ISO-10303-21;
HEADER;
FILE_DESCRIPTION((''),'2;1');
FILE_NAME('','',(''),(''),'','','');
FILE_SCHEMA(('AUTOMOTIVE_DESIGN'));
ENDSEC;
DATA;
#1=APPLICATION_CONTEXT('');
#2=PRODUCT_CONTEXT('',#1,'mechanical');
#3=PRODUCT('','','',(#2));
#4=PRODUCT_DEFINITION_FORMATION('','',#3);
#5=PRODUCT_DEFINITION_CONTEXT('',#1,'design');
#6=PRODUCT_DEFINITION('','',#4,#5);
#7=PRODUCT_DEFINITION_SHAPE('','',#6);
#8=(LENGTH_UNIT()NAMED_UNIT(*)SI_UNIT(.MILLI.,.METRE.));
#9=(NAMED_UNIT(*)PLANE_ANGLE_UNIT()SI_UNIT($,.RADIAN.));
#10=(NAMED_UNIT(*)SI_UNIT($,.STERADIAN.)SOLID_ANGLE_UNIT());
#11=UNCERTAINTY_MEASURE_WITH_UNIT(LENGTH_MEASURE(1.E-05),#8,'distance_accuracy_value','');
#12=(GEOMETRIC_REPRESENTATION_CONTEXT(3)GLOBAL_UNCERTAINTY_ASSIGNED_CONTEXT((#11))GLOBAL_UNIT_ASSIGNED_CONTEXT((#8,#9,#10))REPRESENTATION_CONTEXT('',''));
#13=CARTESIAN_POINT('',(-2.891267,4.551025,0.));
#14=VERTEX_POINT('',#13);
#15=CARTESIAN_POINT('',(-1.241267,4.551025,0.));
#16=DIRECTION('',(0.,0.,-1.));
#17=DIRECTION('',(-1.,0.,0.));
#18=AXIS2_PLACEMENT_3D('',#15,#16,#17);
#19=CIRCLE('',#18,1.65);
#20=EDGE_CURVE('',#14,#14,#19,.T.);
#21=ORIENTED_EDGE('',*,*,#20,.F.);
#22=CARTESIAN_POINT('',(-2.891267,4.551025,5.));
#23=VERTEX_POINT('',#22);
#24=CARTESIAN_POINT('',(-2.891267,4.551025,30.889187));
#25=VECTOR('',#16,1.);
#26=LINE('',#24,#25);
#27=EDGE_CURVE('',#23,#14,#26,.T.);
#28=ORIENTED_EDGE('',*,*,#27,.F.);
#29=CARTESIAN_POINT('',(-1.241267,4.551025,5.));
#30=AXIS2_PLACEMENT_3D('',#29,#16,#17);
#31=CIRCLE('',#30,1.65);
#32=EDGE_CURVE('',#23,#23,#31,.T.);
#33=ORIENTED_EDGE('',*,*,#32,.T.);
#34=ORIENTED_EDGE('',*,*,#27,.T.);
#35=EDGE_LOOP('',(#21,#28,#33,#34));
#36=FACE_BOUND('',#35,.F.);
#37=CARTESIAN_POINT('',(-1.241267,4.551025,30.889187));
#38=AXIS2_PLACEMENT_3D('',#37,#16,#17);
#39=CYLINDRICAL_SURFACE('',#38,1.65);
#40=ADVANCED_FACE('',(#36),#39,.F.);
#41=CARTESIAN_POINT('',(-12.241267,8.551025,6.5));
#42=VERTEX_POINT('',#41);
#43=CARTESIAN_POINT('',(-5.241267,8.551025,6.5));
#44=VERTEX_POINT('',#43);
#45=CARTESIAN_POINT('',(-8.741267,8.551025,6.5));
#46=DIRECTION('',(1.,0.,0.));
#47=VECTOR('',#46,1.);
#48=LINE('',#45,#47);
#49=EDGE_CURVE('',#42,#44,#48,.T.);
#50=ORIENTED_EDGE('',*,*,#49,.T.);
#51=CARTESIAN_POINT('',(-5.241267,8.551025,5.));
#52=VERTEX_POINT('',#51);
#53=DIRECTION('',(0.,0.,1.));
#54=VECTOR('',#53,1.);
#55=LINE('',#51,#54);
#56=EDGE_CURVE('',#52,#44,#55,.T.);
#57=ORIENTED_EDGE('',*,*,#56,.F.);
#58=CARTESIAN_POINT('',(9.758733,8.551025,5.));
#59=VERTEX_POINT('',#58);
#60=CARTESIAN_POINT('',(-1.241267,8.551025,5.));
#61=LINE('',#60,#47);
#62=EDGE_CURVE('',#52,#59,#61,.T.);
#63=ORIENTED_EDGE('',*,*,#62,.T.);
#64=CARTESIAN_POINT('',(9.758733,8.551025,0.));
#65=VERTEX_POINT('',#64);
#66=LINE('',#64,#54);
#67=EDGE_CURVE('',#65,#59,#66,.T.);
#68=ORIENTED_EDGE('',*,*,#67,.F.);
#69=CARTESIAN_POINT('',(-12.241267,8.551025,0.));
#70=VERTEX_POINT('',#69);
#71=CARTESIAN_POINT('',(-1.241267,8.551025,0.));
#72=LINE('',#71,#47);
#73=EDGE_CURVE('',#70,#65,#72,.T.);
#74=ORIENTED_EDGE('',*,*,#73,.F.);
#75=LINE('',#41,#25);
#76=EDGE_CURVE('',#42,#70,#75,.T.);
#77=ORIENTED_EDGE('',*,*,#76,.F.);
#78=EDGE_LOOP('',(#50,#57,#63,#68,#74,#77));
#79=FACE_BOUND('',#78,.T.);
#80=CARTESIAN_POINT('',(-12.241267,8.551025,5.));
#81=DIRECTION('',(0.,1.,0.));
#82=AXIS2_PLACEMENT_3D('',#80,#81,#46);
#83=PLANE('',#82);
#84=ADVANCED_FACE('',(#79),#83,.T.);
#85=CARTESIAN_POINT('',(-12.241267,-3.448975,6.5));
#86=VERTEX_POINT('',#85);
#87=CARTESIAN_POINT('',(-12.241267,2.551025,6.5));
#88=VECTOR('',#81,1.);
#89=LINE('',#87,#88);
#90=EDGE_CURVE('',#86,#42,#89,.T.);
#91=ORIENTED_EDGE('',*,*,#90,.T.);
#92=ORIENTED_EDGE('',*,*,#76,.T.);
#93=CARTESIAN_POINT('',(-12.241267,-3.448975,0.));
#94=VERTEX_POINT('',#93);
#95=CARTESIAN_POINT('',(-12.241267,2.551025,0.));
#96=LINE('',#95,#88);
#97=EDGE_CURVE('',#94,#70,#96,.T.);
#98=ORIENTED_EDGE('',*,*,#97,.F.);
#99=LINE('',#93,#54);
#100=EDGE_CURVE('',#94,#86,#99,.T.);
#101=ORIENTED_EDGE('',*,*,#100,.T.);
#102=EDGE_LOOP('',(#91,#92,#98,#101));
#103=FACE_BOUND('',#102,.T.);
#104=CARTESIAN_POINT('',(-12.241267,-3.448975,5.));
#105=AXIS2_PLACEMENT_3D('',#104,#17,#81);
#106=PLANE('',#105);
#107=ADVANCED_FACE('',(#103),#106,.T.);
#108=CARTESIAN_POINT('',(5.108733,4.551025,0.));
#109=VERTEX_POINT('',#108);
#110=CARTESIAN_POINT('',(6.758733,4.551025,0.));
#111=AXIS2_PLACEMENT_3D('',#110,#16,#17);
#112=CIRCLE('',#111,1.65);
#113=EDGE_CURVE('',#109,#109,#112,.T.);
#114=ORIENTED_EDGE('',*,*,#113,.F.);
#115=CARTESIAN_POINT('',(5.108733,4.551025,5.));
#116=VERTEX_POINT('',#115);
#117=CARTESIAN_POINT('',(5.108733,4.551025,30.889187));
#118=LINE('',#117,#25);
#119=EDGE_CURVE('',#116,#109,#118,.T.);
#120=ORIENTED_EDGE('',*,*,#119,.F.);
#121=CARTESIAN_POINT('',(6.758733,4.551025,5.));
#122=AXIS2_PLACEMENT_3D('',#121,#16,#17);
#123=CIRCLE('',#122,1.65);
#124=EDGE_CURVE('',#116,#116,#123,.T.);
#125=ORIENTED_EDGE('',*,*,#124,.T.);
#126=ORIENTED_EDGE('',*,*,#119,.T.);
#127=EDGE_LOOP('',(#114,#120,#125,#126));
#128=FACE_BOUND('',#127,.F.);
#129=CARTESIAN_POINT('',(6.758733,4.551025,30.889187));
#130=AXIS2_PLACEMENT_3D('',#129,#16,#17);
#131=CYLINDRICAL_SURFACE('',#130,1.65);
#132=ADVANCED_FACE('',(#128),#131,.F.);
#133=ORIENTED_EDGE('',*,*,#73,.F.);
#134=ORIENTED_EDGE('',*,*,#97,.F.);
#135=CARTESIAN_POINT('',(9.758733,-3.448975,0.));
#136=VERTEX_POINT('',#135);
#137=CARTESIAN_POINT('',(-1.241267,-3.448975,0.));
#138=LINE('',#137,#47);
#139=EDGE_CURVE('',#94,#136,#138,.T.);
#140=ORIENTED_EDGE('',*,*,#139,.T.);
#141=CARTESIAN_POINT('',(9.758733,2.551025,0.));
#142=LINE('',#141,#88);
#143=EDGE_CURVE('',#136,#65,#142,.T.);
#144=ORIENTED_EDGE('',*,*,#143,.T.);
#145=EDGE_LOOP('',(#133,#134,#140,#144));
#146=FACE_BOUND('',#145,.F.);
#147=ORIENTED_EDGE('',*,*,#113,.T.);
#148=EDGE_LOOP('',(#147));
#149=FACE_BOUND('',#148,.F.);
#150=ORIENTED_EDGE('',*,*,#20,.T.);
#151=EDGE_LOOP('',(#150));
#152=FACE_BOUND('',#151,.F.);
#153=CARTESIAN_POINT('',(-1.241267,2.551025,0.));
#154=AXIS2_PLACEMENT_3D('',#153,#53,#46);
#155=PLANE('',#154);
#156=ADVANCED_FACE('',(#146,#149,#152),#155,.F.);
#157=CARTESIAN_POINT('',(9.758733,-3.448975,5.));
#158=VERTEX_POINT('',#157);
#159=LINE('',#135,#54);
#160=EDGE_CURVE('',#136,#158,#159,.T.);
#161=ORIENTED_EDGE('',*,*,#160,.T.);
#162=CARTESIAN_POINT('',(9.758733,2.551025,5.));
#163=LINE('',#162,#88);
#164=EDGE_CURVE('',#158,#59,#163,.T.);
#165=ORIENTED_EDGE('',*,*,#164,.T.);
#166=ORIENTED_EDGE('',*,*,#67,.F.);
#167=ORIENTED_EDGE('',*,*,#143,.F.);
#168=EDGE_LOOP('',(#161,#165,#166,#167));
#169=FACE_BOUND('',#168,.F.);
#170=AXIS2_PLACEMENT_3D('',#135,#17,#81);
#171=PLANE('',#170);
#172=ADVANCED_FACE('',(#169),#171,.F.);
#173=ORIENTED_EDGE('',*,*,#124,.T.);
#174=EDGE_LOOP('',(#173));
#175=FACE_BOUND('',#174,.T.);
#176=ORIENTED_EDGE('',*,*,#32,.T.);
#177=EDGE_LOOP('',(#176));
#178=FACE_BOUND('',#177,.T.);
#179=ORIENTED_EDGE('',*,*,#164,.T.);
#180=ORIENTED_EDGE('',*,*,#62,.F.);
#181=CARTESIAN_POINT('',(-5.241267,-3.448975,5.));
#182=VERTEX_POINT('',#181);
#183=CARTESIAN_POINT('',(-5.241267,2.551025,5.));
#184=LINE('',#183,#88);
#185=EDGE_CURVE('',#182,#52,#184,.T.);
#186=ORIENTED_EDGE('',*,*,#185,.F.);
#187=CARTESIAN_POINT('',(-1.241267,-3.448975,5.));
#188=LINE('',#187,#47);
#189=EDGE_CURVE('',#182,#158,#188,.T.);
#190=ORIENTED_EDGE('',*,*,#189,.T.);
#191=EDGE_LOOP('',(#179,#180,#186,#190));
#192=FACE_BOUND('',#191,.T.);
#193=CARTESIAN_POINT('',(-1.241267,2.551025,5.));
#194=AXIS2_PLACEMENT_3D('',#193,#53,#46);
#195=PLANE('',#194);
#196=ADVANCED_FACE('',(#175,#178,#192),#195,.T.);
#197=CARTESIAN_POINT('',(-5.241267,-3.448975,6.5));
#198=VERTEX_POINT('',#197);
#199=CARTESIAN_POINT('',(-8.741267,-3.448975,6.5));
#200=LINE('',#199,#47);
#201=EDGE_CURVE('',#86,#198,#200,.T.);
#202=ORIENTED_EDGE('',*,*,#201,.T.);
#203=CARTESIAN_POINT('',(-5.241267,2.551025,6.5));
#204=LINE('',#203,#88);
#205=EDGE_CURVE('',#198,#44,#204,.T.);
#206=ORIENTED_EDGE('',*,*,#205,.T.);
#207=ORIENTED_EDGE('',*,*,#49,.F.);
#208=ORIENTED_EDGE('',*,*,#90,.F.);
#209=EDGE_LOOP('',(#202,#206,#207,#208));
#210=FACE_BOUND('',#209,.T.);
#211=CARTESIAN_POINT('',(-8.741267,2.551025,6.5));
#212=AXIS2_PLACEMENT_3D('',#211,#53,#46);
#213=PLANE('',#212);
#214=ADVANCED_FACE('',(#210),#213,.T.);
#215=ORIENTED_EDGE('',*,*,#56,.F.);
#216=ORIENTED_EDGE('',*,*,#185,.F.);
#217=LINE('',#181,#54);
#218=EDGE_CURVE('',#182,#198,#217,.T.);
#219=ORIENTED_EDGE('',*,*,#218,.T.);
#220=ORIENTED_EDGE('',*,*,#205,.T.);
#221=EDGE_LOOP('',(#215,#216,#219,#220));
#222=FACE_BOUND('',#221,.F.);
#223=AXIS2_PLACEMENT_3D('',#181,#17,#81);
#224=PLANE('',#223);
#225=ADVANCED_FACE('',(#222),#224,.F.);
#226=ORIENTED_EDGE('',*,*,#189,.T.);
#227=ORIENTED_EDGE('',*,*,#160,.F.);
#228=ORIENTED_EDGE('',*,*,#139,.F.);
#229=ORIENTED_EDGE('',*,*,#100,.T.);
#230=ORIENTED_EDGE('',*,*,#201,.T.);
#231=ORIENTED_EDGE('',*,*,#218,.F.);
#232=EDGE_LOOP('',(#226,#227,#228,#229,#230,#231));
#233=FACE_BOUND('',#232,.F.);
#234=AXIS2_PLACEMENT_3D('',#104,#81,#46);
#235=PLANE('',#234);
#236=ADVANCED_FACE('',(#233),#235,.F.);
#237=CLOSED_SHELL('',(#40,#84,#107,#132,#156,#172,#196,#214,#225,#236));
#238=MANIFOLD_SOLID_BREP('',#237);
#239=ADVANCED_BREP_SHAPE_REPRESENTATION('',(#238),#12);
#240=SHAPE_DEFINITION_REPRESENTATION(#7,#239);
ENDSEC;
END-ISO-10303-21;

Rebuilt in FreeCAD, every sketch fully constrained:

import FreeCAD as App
import Part
import Sketcher
from FreeCAD import Vector
Q = App.Units.Quantity


def add_polygon(sketch, points):
    """Adds a closed chain of lines whose ends are joined by coincident constraints."""
    first, n = sketch.GeometryCount, len(points)
    for a, b in zip(points, points[1:] + points[:1]):
        sketch.addGeometry(Part.LineSegment(App.Vector(*a, 0), App.Vector(*b, 0)), False)
    for i in range(n):
        sketch.addConstraint(Sketcher.Constraint("Coincident", first + i, 2, first + (i + 1) % n, 1))

doc = App.newDocument("Part")
params = doc.addObject("Spreadsheet::Sheet", "Params")
for row, (alias, value) in enumerate([
    ("sketch1_width", "22 mm"),
    ("sketch1_height", "12 mm"),
    ("pad1_length", "5 mm"),
    ("sketch2_width", "7 mm"),
    ("sketch2_height", "12 mm"),
    ("pad2_length", "1.5 mm"),
    ("sketch3_diameter", "3.3 mm"),
    ("hole_diameter", "3.3 mm"),
], start=1):
    params.set(f"A{row}", alias)
    params.set(f"B{row}", "=" + value)
    params.setAlias(f"B{row}", alias)

body = doc.addObject("PartDesign::Body", "Body")

sketch1 = body.newObject("Sketcher::SketchObject", "Sketch")
sketch1.AttachmentSupport = (doc.getObject("XY_Plane"), [""])
sketch1.MapMode = "FlatFace"
add_polygon(sketch1, [(-12.241267, 8.551025), (-12.241267, -3.448975), (9.758733, -3.448975), (9.758733, 8.551025)])
sketch1.addConstraint(Sketcher.Constraint("Vertical", 0))
sketch1.addConstraint(Sketcher.Constraint("Horizontal", 1))
sketch1.addConstraint(Sketcher.Constraint("Vertical", 2))
sketch1.addConstraint(Sketcher.Constraint("Horizontal", 3))
sketch1.addConstraint(Sketcher.Constraint("DistanceX", 1, 1, 1, 2, Q("22 mm")))
sketch1.addConstraint(Sketcher.Constraint("DistanceY", 0, 2, 0, 1, Q("12 mm")))
sketch1.addConstraint(Sketcher.Constraint("DistanceX", 0, 2, -1, 1, Q("12.241267 mm")))
sketch1.addConstraint(Sketcher.Constraint("DistanceY", 0, 2, -1, 1, Q("3.448975 mm")))
sketch1.setExpression("Constraints[8]", "Params.sketch1_width")
sketch1.setExpression("Constraints[9]", "Params.sketch1_height")
pad1 = body.newObject("PartDesign::Pad", "Pad")
pad1.Profile = sketch1
pad1.setExpression("Length", "Params.pad1_length")

sketch2 = body.newObject("Sketcher::SketchObject", "Sketch001")
sketch2.AttachmentSupport = (doc.getObject("XY_Plane"), [""])
sketch2.MapMode = "FlatFace"
sketch2.AttachmentOffset = App.Placement(Vector(0, 0, 5), App.Rotation())
add_polygon(sketch2, [(-12.241267, 8.551025), (-12.241267, -3.448975), (-5.241267, -3.448975), (-5.241267, 8.551025)])
sketch2.addConstraint(Sketcher.Constraint("Vertical", 0))
sketch2.addConstraint(Sketcher.Constraint("Horizontal", 1))
sketch2.addConstraint(Sketcher.Constraint("Vertical", 2))
sketch2.addConstraint(Sketcher.Constraint("Horizontal", 3))
sketch2.addConstraint(Sketcher.Constraint("DistanceX", 1, 1, 1, 2, Q("7 mm")))
sketch2.addConstraint(Sketcher.Constraint("DistanceY", 0, 2, 0, 1, Q("12 mm")))
sketch2.addConstraint(Sketcher.Constraint("DistanceX", 0, 2, -1, 1, Q("12.241267 mm")))
sketch2.addConstraint(Sketcher.Constraint("DistanceY", 0, 2, -1, 1, Q("3.448975 mm")))
sketch2.setExpression("Constraints[8]", "Params.sketch2_width")
sketch2.setExpression("Constraints[9]", "Params.sketch2_height")
pad2 = body.newObject("PartDesign::Pad", "Pad001")
pad2.Profile = sketch2
pad2.setExpression("Length", "Params.pad2_length")

sketch3 = body.newObject("Sketcher::SketchObject", "Sketch002")
sketch3.AttachmentSupport = (doc.getObject("XY_Plane"), [""])
sketch3.MapMode = "FlatFace"
sketch3.AttachmentOffset = App.Placement(Vector(0, 0, 5), App.Rotation())
sketch3.addGeometry(Part.Circle(Vector(-1.241267, 4.551025, 0), Vector(0, 0, 1), 1.65), False)
sketch3.addGeometry(Part.Circle(Vector(6.758733, 4.551025, 0), Vector(0, 0, 1), 1.65), False)
sketch3.addConstraint(Sketcher.Constraint("Equal", 0, 1))
sketch3.addConstraint(Sketcher.Constraint("Horizontal", 0, 3, 1, 3))
sketch3.addConstraint(Sketcher.Constraint("Diameter", 0, Q("3.3 mm")))
sketch3.addConstraint(Sketcher.Constraint("DistanceX", 0, 3, 1, 3, Q("8 mm")))
sketch3.addConstraint(Sketcher.Constraint("DistanceX", 0, 3, -1, 1, Q("1.241267 mm")))
sketch3.addConstraint(Sketcher.Constraint("DistanceY", -1, 1, 0, 3, Q("4.551025 mm")))
sketch3.setExpression("Constraints[2]", "Params.sketch3_diameter")
doc.recompute()
hole = body.newObject("PartDesign::Hole", "Hole")
hole.Profile = sketch3
hole.ThreadType = "None"
hole.setExpression("Diameter", "Params.hole_diameter")
hole.DepthType = "ThroughAll"

doc.recompute()
